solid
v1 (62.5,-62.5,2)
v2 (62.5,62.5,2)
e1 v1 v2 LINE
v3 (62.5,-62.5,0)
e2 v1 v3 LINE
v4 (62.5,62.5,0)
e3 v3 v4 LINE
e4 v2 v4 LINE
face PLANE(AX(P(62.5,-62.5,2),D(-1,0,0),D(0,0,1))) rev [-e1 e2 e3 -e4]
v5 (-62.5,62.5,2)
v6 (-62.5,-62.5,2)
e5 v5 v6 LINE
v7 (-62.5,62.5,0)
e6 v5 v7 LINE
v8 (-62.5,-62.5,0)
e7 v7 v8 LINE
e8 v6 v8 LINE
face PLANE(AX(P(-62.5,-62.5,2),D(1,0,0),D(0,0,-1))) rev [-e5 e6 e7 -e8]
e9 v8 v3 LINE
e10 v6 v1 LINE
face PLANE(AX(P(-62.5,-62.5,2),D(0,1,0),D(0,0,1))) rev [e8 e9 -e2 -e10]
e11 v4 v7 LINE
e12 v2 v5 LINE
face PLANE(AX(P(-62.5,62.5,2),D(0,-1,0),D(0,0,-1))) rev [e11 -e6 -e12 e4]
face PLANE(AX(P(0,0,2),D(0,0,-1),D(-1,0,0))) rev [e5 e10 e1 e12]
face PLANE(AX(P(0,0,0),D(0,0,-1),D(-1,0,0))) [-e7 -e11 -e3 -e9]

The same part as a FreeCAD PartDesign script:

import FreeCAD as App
import Part
import Sketcher

doc = App.newDocument("Part")
params = doc.addObject("Spreadsheet::Sheet", "Params")
for row, (alias, value) in enumerate([
    ("sketch1_width", "125 mm"),
    ("pad1_length", "2 mm"),
], start=1):
    params.set(f"A{row}", alias)
    params.set(f"B{row}", "=" + value)
    params.setAlias(f"B{row}", alias)

body = doc.addObject("PartDesign::Body", "Body")

sketch1 = doc.addObject("Sketcher::SketchObject", "Sketch")
body.addObject(sketch1)
sketch1.AttachmentSupport = (doc.XY_Plane, [""])
sketch1.MapMode = "FlatFace"
sketch1.addGeometry(Part.LineSegment(App.Vector(-62, 62, 0), App.Vector(-62, -62, 0)), False)
sketch1.addGeometry(Part.LineSegment(App.Vector(-62, -62, 0), App.Vector(62, -62, 0)), False)
sketch1.addGeometry(Part.LineSegment(App.Vector(62, -62, 0), App.Vector(62, 62, 0)), False)
sketch1.addGeometry(Part.LineSegment(App.Vector(62, 62, 0), App.Vector(-62, 62, 0)), False)
sketch1.addConstraint(Sketcher.Constraint("Coincident", 0, 2, 1, 1))
sketch1.addConstraint(Sketcher.Constraint("Coincident", 1, 2, 2, 1))
sketch1.addConstraint(Sketcher.Constraint("Coincident", 2, 2, 3, 1))
sketch1.addConstraint(Sketcher.Constraint("Coincident", 3, 2, 0, 1))
sketch1.addConstraint(Sketcher.Constraint("Vertical", 0))
sketch1.addConstraint(Sketcher.Constraint("Horizontal", 1))
sketch1.addConstraint(Sketcher.Constraint("Vertical", 2))
sketch1.addConstraint(Sketcher.Constraint("Horizontal", 3))
sketch1.addConstraint(Sketcher.Constraint("Symmetric", 0, 2, 2, 2, -1, 1))
sketch1.addConstraint(Sketcher.Constraint("Equal", 3, 0))
sketch1.addConstraint(Sketcher.Constraint("DistanceX", 1, 1, 1, 2, 125.0))
sketch1.setExpression("Constraints[10]", "Params.sketch1_width")
pad1 = doc.addObject("PartDesign::Pad", "Pad")
body.addObject(pad1)
pad1.Profile = sketch1
pad1.setExpression("Length", "Params.pad1_length")

doc.recompute()
